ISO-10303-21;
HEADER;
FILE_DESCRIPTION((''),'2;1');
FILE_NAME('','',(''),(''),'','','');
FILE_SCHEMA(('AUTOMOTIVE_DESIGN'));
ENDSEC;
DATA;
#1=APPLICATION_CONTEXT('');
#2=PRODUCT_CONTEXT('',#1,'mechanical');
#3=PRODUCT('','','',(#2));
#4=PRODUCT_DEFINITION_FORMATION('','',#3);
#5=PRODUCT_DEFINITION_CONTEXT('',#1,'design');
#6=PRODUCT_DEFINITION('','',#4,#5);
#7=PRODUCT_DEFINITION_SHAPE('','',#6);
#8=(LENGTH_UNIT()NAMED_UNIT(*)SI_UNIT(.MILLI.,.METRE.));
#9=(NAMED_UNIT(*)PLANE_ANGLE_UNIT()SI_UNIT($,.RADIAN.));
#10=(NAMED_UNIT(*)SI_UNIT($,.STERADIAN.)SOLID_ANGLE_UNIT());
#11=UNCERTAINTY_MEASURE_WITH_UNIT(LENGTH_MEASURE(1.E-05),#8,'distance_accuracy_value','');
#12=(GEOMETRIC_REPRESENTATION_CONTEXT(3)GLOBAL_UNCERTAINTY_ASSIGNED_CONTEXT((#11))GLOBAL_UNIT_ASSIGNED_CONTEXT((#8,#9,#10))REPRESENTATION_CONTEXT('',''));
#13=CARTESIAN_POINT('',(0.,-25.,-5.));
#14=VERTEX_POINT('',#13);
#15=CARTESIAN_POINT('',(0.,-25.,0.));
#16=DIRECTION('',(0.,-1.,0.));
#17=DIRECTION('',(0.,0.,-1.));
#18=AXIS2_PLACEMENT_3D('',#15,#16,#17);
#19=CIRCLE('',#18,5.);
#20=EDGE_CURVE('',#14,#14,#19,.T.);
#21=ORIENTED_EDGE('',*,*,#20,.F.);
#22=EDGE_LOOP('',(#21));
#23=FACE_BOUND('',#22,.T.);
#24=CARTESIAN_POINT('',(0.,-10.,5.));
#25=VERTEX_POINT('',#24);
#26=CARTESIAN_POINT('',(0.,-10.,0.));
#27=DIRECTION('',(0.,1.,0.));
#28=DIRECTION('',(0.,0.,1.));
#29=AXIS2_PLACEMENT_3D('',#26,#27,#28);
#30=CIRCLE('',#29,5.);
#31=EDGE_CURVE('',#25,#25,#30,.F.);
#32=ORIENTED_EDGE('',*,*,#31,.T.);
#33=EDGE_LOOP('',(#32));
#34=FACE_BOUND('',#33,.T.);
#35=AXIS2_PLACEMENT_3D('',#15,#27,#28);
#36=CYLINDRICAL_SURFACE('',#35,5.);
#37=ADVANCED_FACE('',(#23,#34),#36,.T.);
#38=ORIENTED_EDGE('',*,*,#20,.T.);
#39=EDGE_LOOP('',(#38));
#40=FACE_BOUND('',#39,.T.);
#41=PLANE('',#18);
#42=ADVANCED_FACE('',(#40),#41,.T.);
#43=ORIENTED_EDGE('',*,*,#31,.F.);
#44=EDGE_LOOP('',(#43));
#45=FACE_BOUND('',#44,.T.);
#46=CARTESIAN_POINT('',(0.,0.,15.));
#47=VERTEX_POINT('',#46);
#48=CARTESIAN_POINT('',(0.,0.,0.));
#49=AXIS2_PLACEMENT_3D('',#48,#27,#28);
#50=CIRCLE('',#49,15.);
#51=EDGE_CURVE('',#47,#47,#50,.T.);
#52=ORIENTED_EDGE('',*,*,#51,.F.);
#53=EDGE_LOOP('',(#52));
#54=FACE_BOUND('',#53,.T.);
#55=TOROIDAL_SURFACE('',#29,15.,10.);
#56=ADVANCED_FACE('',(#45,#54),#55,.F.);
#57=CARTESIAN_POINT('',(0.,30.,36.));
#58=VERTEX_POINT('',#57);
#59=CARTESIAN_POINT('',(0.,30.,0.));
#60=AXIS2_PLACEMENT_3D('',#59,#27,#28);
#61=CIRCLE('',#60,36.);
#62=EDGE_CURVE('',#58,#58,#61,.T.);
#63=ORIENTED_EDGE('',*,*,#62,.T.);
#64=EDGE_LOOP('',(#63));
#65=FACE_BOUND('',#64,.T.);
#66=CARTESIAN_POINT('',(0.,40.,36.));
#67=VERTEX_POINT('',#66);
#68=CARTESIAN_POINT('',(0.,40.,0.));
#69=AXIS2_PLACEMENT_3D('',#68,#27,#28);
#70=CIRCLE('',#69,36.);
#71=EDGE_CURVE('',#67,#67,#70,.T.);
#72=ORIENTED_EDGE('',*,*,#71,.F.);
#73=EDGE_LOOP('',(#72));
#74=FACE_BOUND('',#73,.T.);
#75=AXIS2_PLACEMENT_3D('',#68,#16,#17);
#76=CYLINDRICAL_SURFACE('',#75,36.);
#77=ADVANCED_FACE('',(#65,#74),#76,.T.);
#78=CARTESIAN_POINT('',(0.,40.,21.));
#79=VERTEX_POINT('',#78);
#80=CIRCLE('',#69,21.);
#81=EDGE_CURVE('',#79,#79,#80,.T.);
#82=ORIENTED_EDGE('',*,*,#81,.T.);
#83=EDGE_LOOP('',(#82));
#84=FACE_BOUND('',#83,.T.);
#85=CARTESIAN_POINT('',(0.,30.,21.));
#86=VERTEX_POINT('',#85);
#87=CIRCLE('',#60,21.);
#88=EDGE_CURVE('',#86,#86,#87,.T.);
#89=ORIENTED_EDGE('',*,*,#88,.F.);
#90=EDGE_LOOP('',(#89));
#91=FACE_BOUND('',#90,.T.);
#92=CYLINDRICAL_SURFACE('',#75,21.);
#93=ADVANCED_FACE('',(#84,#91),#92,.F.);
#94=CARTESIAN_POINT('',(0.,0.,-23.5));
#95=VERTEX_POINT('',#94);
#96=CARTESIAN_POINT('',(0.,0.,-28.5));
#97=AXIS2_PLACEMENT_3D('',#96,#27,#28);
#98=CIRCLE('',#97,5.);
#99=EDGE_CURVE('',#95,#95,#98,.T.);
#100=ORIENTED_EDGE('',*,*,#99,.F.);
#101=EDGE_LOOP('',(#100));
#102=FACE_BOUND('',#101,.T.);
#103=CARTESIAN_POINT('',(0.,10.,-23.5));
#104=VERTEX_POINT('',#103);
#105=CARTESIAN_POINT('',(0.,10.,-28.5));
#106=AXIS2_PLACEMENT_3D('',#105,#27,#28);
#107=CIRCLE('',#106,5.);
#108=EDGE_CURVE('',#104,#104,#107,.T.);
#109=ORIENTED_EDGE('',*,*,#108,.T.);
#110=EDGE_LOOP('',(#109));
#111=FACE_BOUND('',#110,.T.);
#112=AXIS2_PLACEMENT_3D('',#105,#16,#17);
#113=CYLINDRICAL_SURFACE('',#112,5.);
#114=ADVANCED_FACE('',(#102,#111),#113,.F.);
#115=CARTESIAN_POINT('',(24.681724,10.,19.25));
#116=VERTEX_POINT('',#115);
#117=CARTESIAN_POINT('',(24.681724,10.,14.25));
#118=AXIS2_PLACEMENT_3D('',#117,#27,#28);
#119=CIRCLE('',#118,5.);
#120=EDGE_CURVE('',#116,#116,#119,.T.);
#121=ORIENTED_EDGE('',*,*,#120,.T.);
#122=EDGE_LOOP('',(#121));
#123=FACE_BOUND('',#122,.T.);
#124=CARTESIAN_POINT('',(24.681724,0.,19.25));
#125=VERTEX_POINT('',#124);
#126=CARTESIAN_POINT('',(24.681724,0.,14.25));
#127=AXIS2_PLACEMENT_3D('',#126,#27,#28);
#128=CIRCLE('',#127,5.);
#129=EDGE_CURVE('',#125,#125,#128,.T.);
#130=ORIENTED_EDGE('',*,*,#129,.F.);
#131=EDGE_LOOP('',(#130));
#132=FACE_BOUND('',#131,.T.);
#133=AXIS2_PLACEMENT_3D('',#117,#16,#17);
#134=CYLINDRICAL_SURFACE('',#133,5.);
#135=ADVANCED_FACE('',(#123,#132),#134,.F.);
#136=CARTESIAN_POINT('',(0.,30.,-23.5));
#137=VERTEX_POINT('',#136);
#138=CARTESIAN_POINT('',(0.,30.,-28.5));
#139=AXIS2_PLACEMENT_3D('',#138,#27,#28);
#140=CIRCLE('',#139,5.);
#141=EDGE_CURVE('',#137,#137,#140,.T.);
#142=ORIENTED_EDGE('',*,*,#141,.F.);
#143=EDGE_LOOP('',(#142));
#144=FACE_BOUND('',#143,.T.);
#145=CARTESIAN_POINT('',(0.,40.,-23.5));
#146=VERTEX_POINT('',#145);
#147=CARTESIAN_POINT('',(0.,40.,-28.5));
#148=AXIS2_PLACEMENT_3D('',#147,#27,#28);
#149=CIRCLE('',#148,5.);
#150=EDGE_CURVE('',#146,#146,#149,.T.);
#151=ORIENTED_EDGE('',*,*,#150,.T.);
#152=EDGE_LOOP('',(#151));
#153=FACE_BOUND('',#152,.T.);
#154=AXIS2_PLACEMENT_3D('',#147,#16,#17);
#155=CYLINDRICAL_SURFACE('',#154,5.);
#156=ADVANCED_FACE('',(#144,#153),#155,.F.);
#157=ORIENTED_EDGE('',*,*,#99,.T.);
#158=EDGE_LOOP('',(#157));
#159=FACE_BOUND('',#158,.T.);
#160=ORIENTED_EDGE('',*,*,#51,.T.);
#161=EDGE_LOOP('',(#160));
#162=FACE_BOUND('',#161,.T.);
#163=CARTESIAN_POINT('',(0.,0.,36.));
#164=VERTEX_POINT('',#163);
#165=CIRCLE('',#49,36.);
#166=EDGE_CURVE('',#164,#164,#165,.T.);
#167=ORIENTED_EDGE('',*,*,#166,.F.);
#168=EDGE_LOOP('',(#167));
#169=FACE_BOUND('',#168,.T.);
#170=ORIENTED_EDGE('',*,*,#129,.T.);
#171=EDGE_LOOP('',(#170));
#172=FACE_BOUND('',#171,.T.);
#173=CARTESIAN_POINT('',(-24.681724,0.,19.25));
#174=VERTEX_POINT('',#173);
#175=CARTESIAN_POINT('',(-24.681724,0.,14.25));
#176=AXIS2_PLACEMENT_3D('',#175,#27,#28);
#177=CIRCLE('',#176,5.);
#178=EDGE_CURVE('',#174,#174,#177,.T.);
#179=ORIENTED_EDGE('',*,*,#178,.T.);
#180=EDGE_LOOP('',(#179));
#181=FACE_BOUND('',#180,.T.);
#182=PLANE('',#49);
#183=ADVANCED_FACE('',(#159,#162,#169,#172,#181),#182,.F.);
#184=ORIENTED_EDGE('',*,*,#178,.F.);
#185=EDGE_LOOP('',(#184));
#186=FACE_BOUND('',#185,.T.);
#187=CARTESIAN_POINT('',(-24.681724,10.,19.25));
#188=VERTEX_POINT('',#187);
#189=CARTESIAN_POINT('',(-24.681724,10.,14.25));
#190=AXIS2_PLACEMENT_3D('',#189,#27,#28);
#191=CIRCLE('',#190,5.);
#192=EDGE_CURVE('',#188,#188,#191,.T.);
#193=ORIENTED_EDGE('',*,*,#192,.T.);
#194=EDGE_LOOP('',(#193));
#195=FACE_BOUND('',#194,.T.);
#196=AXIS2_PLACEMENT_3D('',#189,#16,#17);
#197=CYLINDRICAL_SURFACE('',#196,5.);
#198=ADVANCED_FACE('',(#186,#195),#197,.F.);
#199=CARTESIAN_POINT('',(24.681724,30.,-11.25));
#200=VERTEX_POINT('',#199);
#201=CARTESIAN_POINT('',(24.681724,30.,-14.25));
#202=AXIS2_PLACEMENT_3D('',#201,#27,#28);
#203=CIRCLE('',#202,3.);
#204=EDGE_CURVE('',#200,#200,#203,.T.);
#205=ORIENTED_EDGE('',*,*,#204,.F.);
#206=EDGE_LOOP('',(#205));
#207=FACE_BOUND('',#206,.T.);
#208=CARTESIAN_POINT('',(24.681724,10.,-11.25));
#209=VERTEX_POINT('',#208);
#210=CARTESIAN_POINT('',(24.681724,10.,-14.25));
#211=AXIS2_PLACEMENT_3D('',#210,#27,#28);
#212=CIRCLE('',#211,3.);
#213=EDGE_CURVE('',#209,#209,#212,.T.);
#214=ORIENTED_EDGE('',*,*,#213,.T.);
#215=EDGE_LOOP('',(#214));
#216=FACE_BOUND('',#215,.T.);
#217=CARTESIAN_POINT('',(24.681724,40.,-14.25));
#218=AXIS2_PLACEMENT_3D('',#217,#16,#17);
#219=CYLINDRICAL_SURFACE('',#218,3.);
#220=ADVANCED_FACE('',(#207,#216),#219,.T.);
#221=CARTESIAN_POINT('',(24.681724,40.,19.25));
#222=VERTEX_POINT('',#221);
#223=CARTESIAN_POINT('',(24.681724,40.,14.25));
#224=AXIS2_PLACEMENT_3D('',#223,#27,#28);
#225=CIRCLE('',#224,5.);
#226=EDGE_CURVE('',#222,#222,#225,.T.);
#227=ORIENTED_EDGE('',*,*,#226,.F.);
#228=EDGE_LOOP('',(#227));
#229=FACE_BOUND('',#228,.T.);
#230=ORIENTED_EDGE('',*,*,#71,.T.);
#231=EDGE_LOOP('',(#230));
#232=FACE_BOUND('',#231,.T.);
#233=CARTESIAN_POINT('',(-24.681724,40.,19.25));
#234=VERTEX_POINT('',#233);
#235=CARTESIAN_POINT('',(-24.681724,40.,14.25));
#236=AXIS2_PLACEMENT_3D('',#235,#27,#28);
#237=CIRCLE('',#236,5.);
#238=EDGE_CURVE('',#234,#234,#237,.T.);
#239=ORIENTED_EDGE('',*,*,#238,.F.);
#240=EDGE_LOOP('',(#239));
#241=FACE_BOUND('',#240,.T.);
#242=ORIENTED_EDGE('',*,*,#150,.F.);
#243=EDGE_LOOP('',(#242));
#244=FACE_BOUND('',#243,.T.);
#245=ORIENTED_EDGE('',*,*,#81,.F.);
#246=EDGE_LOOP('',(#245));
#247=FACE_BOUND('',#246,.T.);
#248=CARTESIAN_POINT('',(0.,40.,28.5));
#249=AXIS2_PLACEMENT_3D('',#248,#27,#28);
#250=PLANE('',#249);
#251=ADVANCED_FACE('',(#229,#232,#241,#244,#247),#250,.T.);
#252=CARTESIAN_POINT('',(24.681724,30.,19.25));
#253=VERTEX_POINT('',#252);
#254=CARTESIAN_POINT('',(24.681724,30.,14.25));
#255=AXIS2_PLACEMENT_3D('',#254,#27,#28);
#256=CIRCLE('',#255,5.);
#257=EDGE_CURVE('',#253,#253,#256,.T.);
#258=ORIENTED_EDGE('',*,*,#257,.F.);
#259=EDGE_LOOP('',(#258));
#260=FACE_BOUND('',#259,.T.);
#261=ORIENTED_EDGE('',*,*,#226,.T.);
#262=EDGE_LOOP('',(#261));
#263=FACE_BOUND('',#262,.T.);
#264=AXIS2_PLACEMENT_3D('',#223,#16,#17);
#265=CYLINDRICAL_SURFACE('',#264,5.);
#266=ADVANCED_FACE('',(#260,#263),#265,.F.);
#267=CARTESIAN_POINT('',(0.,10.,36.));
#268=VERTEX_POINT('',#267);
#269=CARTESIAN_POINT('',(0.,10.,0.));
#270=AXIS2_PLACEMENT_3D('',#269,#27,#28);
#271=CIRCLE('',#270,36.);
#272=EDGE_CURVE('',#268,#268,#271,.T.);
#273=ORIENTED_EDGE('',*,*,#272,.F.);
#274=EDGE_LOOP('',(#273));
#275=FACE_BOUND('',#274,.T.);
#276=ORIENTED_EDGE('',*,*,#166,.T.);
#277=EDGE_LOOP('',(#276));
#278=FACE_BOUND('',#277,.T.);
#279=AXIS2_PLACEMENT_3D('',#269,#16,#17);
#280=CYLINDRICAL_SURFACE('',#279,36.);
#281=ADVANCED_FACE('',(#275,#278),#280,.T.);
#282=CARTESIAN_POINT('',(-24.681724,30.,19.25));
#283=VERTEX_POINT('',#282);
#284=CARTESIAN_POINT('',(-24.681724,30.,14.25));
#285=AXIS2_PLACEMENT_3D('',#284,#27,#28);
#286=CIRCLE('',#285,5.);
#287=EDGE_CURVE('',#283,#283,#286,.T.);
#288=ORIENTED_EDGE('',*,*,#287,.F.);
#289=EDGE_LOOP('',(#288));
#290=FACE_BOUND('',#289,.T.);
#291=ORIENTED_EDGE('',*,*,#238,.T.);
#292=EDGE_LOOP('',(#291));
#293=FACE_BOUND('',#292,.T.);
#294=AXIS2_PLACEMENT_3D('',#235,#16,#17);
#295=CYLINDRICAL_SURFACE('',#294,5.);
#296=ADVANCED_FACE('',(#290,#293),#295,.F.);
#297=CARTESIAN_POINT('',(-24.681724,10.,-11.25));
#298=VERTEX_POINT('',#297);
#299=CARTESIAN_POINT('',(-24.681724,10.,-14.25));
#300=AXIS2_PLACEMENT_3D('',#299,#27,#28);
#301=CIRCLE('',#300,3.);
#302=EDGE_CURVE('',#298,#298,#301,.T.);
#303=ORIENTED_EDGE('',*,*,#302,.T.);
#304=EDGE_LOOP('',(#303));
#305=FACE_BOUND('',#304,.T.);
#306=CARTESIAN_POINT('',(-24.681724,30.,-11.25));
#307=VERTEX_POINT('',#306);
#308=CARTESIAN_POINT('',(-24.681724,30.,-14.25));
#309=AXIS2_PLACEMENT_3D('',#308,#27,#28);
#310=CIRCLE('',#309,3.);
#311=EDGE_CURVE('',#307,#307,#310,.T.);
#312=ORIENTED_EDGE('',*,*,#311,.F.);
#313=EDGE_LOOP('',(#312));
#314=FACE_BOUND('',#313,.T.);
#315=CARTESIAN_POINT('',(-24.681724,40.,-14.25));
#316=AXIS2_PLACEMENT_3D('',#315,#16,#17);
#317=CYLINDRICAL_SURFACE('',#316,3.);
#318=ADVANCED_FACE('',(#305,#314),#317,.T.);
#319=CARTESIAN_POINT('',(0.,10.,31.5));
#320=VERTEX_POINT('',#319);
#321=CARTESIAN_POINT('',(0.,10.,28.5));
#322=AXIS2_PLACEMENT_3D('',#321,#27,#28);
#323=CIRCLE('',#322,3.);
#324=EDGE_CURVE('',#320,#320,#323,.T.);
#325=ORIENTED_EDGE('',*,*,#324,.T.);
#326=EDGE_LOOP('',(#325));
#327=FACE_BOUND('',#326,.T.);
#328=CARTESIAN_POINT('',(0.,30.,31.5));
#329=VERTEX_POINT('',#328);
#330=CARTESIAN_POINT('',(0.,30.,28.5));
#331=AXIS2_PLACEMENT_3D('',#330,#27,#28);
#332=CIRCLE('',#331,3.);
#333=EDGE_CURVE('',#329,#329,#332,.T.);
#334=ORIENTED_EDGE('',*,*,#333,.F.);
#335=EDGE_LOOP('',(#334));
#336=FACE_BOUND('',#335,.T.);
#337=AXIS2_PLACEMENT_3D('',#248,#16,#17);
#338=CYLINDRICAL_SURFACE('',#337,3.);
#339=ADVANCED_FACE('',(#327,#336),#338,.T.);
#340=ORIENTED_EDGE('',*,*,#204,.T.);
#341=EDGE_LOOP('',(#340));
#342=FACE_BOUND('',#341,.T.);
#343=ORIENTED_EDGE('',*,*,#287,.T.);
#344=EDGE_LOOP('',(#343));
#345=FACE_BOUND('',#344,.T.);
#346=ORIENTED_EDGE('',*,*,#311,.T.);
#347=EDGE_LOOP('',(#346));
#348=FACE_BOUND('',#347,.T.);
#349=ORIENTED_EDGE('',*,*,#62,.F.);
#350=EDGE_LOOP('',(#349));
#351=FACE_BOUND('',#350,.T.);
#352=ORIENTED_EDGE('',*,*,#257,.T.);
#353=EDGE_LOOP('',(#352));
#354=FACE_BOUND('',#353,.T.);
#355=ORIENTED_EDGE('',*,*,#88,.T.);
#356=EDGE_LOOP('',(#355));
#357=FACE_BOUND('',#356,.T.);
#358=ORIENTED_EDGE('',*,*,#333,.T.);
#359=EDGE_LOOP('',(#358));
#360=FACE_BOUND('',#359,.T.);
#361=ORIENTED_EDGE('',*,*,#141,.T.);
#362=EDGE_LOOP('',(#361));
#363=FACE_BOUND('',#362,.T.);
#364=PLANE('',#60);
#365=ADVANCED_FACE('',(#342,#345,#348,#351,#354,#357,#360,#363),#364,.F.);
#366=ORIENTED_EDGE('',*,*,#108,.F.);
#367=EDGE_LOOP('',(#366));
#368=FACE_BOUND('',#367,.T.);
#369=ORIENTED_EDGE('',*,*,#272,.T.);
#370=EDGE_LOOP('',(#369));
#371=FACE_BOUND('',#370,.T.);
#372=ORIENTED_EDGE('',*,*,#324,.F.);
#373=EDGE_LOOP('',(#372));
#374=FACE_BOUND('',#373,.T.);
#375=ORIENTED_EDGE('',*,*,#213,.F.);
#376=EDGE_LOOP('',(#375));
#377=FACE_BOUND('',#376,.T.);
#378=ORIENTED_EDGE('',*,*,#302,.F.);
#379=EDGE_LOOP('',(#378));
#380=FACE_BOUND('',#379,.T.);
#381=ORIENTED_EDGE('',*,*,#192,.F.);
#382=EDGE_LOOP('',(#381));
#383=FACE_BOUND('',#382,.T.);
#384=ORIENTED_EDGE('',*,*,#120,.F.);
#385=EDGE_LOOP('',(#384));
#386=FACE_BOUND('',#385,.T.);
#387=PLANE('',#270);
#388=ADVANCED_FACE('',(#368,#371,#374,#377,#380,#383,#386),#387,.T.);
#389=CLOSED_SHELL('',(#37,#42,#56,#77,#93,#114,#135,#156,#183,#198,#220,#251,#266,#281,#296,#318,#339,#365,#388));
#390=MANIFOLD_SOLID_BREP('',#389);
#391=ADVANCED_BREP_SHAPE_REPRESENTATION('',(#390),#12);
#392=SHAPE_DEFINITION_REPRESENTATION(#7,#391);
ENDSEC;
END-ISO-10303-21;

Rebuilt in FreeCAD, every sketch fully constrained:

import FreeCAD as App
import Part
import Sketcher
Q = App.Units.Quantity


def edges_at(feature, points):
    """Names of the edges that pass closest to the given points."""
    edges = feature.Shape.Edges
    near = lambda p: min(range(len(edges)), key=lambda i: edges[i].distToShape(Part.Vertex(*p))[0])
    return sorted({f"Edge{near(p) + 1}" for p in points})

doc = App.newDocument("Part")
body = doc.addObject("PartDesign::Body", "Body")

# Sketch on XZ plane
sketch1 = body.newObject("Sketcher::SketchObject", "Sketch")
sketch1.AttachmentSupport = (doc.getObject("XZ_Plane"), [""])
sketch1.MapMode = "FlatFace"
sketch1.addGeometry([
    Part.Circle(App.Vector(0, 0, 0), App.Vector(0, 0, 1), 36),  # 0
    Part.Circle(App.Vector(-24.7, -14.2, 0), App.Vector(0, 0, 1), 3),  # 1
    Part.Circle(App.Vector(0, -28.5, 0), App.Vector(0, 0, 1), 5),  # 2
    Part.Circle(App.Vector(-24.7, 14.2, 0), App.Vector(0, 0, 1), 5),  # 3
    Part.Circle(App.Vector(0, 0, 0), App.Vector(0, 0, 1), 21),  # 4
    Part.Circle(App.Vector(24.7, -14.2, 0), App.Vector(0, 0, 1), 3),  # 5
    Part.Circle(App.Vector(0, 28.5, 0), App.Vector(0, 0, 1), 3),  # 6
    Part.Circle(App.Vector(24.7, 14.2, 0), App.Vector(0, 0, 1), 5),  # 7
], False)
sketch1.addConstraint([
    Sketcher.Constraint("Coincident", 0, 3, -1, 1),
    Sketcher.Constraint("Coincident", 4, 3, -1, 1),
    Sketcher.Constraint("Equal", 2, 3),
    Sketcher.Constraint("Equal", 1, 5),
    Sketcher.Constraint("Equal", 5, 6),
    Sketcher.Constraint("Equal", 3, 7),
    Sketcher.Constraint("Symmetric", 3, 3, 5, 3, -1, 1),
    Sketcher.Constraint("Symmetric", 2, 3, 6, 3, -1, 1),
    Sketcher.Constraint("Symmetric", 1, 3, 7, 3, -1, 1),
    Sketcher.Constraint("Symmetric", 1, 3, 5, 3, -2),
    Sketcher.Constraint("PointOnObject", 2, 3, -2),
    Sketcher.Constraint("Diameter", 0, Q("72 mm")),
    Sketcher.Constraint("Diameter", 1, Q("6 mm")),
    Sketcher.Constraint("Diameter", 2, Q("10 mm")),
    Sketcher.Constraint("Diameter", 4, Q("42 mm")),
    Sketcher.Constraint("DistanceY", 2, 3, -1, 1, Q("28.5 mm")),
    Sketcher.Constraint("DistanceY", 1, 3, 3, 3, Q("28.5 mm")),
    Sketcher.Constraint("DistanceX", 1, 3, 5, 3, Q("49.363448 mm")),
])
pad1 = body.newObject("PartDesign::Pad", "Pad")
pad1.Profile = sketch1
pad1.Length = 10
pad1.Reversed = True

# Sketch on XZ plane
sketch2 = body.newObject("Sketcher::SketchObject", "Sketch001")
sketch2.AttachmentSupport = (doc.getObject("XZ_Plane"), [""])
sketch2.MapMode = "FlatFace"
sketch2.addGeometry([
    Part.Circle(App.Vector(0, 28.5, 0), App.Vector(0, 0, 1), 3),
    Part.Circle(App.Vector(-24.7, -14.2, 0), App.Vector(0, 0, 1), 3),
    Part.Circle(App.Vector(24.7, -14.2, 0), App.Vector(0, 0, 1), 3),
], False)
sketch2.addConstraint([
    Sketcher.Constraint("Equal", 0, 1),
    Sketcher.Constraint("Equal", 1, 2),
    Sketcher.Constraint("Symmetric", 1, 3, 2, 3, -2),
    Sketcher.Constraint("PointOnObject", 0, 3, -2),
    Sketcher.Constraint("Diameter", 0, Q("6 mm")),
    Sketcher.Constraint("DistanceY", -1, 1, 0, 3, Q("28.5 mm")),
    Sketcher.Constraint("DistanceY", 1, 3, -1, 1, Q("14.25 mm")),
    Sketcher.Constraint("DistanceX", 1, 3, 2, 3, Q("49.363448 mm")),
])
pad2 = body.newObject("PartDesign::Pad", "Pad001")
pad2.Profile = sketch2
pad2.Length = 40
pad2.Reversed = True
doc.recompute()

linearpattern = body.newObject("PartDesign::LinearPattern", "LinearPattern")
linearpattern.Originals = [pad1]
linearpattern.Direction = (doc.getObject("Y_Axis"), [""])
linearpattern.Mode = "offset"
linearpattern.Offset = 30
linearpattern.Occurrences = 2
body.Tip = linearpattern

# Sketch on XZ plane
sketch3 = body.newObject("Sketcher::SketchObject", "Sketch002")
sketch3.AttachmentSupport = (doc.getObject("XZ_Plane"), [""])
sketch3.MapMode = "FlatFace"
sketch3.addGeometry(Part.Circle(App.Vector(0, 0, 0), App.Vector(0, 0, 1), 21), False)
sketch3.addConstraint([
    Sketcher.Constraint("Coincident", 0, 3, -1, 1),
    Sketcher.Constraint("Diameter", 0, Q("42 mm")),
])
pad3 = body.newObject("PartDesign::Pad", "Pad002")
pad3.Profile = sketch3
pad3.Length = 10
pad3.Reversed = True

# Sketch on XZ plane
sketch4 = body.newObject("Sketcher::SketchObject", "Sketch003")
sketch4.AttachmentSupport = (doc.getObject("XZ_Plane"), [""])
sketch4.MapMode = "FlatFace"
sketch4.addGeometry(Part.Circle(App.Vector(0, 0, 0), App.Vector(0, 0, 1), 5), False)
sketch4.addConstraint([
    Sketcher.Constraint("Coincident", 0, 3, -1, 1),
    Sketcher.Constraint("Diameter", 0, Q("10 mm")),
])
pad4 = body.newObject("PartDesign::Pad", "Pad003")
pad4.Profile = sketch4
pad4.Length = 25
doc.recompute()

fillet = body.newObject("PartDesign::Fillet", "Fillet")
fillet.Base = (pad4, edges_at(pad4, [(0, 0, -5)]))
fillet.Radius = 10

doc.recompute()
